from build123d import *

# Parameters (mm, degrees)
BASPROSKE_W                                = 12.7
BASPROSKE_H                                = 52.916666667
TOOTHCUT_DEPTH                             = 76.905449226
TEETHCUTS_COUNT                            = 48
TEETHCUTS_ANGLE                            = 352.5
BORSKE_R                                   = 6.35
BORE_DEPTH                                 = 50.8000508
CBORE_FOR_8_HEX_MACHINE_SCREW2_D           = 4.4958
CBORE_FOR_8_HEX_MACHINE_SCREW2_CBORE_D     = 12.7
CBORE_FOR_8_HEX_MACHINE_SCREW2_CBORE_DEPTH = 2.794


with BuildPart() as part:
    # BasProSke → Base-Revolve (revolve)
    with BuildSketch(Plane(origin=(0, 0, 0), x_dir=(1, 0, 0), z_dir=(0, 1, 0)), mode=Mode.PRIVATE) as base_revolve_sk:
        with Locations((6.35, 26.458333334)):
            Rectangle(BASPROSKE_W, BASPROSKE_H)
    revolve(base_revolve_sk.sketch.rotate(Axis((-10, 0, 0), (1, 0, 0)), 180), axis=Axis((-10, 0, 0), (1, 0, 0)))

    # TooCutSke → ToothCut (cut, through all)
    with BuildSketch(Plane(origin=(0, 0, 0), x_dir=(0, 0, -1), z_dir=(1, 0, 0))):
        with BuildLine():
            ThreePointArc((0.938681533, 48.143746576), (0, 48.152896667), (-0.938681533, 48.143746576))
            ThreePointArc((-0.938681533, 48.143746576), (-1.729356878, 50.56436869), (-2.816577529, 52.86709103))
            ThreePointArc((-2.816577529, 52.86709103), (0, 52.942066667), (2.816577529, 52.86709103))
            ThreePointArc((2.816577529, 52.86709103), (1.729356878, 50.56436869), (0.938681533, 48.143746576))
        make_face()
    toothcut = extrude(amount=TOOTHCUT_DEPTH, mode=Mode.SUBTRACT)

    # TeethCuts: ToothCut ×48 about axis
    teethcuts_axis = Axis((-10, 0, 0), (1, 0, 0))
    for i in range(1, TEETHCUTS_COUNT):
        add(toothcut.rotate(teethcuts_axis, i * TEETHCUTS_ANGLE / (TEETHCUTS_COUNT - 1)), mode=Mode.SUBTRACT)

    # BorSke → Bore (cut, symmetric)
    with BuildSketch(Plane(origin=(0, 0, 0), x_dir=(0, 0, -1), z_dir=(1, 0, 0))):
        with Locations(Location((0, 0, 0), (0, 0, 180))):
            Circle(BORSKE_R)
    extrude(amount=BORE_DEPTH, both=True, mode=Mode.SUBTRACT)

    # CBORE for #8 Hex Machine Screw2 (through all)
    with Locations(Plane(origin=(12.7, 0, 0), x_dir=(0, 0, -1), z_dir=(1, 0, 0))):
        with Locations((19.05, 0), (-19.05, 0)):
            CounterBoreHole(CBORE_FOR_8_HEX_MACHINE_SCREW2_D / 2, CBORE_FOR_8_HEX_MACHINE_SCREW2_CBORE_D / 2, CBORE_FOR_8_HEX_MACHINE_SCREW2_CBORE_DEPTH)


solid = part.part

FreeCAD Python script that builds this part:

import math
import FreeCAD as App
import Part
import Sketcher
from FreeCAD import Vector
Q = App.Units.Quantity

doc = App.newDocument("Part")
body = doc.addObject("PartDesign::Body", "Body")

# Sketch on XZ plane
sketch1 = doc.addObject("Sketcher::SketchObject", "Sketch")
body.addObject(sketch1)
sketch1.AttachmentSupport = (doc.XZ_Plane, [""])
sketch1.MapMode = "FlatFace"
sketch1.addGeometry([
    Part.LineSegment(Vector(0, -53, 0), Vector(0, 0, 0)),
    Part.LineSegment(Vector(0, 0, 0), Vector(13, 0, 0)),
    Part.LineSegment(Vector(13, 0, 0), Vector(13, -53, 0)),
    Part.LineSegment(Vector(13, -53, 0), Vector(0, -53, 0)),
], False)
sketch1.addConstraint([
    Sketcher.Constraint("Coincident", 0, 2, 1, 1),
    Sketcher.Constraint("Coincident", 1, 2, 2, 1),
    Sketcher.Constraint("Coincident", 2, 2, 3, 1),
    Sketcher.Constraint("Coincident", 3, 2, 0, 1),
    Sketcher.Constraint("Vertical", 0),
    Sketcher.Constraint("Horizontal", 1),
    Sketcher.Constraint("Vertical", 2),
    Sketcher.Constraint("Horizontal", 3),
    Sketcher.Constraint("Coincident", 0, 2, -1, 1),
    Sketcher.Constraint("DistanceX", 1, 1, 1, 2, Q("0.5 in")),
    Sketcher.Constraint("DistanceY", 0, 1, 0, 2, 52.916667),
])
revolution = doc.addObject("PartDesign::Revolution", "Revolution")
body.addObject(revolution)
revolution.Profile = sketch1
revolution.ReferenceAxis = (sketch1, ["H_Axis"])
revolution.Angle = 360

# Sketch on YZ plane
sketch2 = doc.addObject("Sketcher::SketchObject", "Sketch001")
body.addObject(sketch2)
sketch2.AttachmentSupport = (doc.YZ_Plane, [""])
sketch2.MapMode = "FlatFace"
sketch2.addGeometry([
    Part.ArcOfCircle(Part.Circle(Vector(0, 0, 0), Vector(0, 0, 1), 48.2), math.radians(-1.12), math.radians(1.12)),
    Part.ArcOfCircle(Part.Circle(Vector(43.1, -20.6, 0), Vector(0, 0, 1), 20.3), math.radians(61.13), math.radians(75.5)),
    Part.ArcOfCircle(Part.Circle(Vector(0, 0, 0), Vector(0, 0, 1), 52.9), math.radians(-3.05), math.radians(3.05)),
    Part.ArcOfCircle(Part.Circle(Vector(43.1, 20.6, 0), Vector(0, 0, 1), 20.3), math.radians(-75.5), math.radians(-61.13)),
], False)
sketch2.addConstraint([
    Sketcher.Constraint("Coincident", 0, 1, 1, 2),
    Sketcher.Constraint("Coincident", 1, 1, 2, 1),
    Sketcher.Constraint("Coincident", 2, 2, 3, 2),
    Sketcher.Constraint("Coincident", 3, 1, 0, 2),
    Sketcher.Constraint("Coincident", 0, 3, -1, 1),
    Sketcher.Constraint("Coincident", 2, 3, -1, 1),
    Sketcher.Constraint("Equal", 1, 3),
    Sketcher.Constraint("Symmetric", 1, 3, 3, 3, -1),
    Sketcher.Constraint("Radius", 1, Q("0.8 in")),
    Sketcher.Constraint("Radius", 0, 48.152895),
    Sketcher.Constraint("Radius", 2, 52.942067),
    Sketcher.Constraint("DistanceX", -1, 1, 1, 3, 43.057158),
    Sketcher.Constraint("DistanceY", 0, 1, -1, 1, 0.938682),
])
pocket1 = doc.addObject("PartDesign::Pocket", "Pocket")
body.addObject(pocket1)
pocket1.Profile = sketch2
pocket1.Type = "ThroughAll"
pocket1.Reversed = True
doc.recompute()

polarpattern = doc.addObject("PartDesign::PolarPattern", "PolarPattern")
body.addObject(polarpattern)
polarpattern.Originals = [pocket1]
polarpattern.Axis = (doc.X_Axis, [""])
polarpattern.Angle = 360
polarpattern.Occurrences = 48
body.Tip = polarpattern

# Sketch on YZ plane
sketch3 = doc.addObject("Sketcher::SketchObject", "Sketch002")
body.addObject(sketch3)
sketch3.AttachmentSupport = (doc.YZ_Plane, [""])
sketch3.MapMode = "FlatFace"
sketch3.addGeometry(Part.Circle(Vector(0, 0, 0), Vector(0, 0, 1), 6), False)
sketch3.addConstraint([
    Sketcher.Constraint("Coincident", 0, 3, -1, 1),
    Sketcher.Constraint("Diameter", 0, Q("0.5 in")),
])
pocket2 = doc.addObject("PartDesign::Pocket", "Pocket001")
body.addObject(pocket2)
pocket2.Profile = sketch3
pocket2.Length = 101.600102
pocket2.Midplane = True

# Sketch on YZ plane
sketch4 = doc.addObject("Sketcher::SketchObject", "Sketch003")
body.addObject(sketch4)
sketch4.AttachmentSupport = (doc.YZ_Plane, [""])
sketch4.MapMode = "FlatFace"
sketch4.AttachmentOffset = App.Placement(Vector(0, 0, 0.5 * 25.4), App.Rotation())
sketch4.addGeometry([
    Part.Circle(Vector(0, -19.1, 0), Vector(0, 0, 1), 2.2),
    Part.Circle(Vector(0, 19.1, 0), Vector(0, 0, 1), 2.2),
], False)
sketch4.addConstraint([
    Sketcher.Constraint("Equal", 0, 1),
    Sketcher.Constraint("Symmetric", 0, 3, 1, 3, -1, 1),
    Sketcher.Constraint("PointOnObject", 0, 3, -2),
    Sketcher.Constraint("Diameter", 0, Q("0.177 in")),
    Sketcher.Constraint("DistanceY", 0, 3, 1, 3, Q("1.5 in")),
])
doc.recompute()
hole = doc.addObject("PartDesign::Hole", "Hole")
body.addObject(hole)
hole.Profile = sketch4
hole.ThreadType = "None"
hole.Diameter = Q("0.177 in")
hole.DepthType = "ThroughAll"
hole.HoleCutType = "Counterbore"
hole.HoleCutDiameter = Q("0.5 in")
hole.HoleCutDepth = Q("0.11 in")

doc.recompute()
